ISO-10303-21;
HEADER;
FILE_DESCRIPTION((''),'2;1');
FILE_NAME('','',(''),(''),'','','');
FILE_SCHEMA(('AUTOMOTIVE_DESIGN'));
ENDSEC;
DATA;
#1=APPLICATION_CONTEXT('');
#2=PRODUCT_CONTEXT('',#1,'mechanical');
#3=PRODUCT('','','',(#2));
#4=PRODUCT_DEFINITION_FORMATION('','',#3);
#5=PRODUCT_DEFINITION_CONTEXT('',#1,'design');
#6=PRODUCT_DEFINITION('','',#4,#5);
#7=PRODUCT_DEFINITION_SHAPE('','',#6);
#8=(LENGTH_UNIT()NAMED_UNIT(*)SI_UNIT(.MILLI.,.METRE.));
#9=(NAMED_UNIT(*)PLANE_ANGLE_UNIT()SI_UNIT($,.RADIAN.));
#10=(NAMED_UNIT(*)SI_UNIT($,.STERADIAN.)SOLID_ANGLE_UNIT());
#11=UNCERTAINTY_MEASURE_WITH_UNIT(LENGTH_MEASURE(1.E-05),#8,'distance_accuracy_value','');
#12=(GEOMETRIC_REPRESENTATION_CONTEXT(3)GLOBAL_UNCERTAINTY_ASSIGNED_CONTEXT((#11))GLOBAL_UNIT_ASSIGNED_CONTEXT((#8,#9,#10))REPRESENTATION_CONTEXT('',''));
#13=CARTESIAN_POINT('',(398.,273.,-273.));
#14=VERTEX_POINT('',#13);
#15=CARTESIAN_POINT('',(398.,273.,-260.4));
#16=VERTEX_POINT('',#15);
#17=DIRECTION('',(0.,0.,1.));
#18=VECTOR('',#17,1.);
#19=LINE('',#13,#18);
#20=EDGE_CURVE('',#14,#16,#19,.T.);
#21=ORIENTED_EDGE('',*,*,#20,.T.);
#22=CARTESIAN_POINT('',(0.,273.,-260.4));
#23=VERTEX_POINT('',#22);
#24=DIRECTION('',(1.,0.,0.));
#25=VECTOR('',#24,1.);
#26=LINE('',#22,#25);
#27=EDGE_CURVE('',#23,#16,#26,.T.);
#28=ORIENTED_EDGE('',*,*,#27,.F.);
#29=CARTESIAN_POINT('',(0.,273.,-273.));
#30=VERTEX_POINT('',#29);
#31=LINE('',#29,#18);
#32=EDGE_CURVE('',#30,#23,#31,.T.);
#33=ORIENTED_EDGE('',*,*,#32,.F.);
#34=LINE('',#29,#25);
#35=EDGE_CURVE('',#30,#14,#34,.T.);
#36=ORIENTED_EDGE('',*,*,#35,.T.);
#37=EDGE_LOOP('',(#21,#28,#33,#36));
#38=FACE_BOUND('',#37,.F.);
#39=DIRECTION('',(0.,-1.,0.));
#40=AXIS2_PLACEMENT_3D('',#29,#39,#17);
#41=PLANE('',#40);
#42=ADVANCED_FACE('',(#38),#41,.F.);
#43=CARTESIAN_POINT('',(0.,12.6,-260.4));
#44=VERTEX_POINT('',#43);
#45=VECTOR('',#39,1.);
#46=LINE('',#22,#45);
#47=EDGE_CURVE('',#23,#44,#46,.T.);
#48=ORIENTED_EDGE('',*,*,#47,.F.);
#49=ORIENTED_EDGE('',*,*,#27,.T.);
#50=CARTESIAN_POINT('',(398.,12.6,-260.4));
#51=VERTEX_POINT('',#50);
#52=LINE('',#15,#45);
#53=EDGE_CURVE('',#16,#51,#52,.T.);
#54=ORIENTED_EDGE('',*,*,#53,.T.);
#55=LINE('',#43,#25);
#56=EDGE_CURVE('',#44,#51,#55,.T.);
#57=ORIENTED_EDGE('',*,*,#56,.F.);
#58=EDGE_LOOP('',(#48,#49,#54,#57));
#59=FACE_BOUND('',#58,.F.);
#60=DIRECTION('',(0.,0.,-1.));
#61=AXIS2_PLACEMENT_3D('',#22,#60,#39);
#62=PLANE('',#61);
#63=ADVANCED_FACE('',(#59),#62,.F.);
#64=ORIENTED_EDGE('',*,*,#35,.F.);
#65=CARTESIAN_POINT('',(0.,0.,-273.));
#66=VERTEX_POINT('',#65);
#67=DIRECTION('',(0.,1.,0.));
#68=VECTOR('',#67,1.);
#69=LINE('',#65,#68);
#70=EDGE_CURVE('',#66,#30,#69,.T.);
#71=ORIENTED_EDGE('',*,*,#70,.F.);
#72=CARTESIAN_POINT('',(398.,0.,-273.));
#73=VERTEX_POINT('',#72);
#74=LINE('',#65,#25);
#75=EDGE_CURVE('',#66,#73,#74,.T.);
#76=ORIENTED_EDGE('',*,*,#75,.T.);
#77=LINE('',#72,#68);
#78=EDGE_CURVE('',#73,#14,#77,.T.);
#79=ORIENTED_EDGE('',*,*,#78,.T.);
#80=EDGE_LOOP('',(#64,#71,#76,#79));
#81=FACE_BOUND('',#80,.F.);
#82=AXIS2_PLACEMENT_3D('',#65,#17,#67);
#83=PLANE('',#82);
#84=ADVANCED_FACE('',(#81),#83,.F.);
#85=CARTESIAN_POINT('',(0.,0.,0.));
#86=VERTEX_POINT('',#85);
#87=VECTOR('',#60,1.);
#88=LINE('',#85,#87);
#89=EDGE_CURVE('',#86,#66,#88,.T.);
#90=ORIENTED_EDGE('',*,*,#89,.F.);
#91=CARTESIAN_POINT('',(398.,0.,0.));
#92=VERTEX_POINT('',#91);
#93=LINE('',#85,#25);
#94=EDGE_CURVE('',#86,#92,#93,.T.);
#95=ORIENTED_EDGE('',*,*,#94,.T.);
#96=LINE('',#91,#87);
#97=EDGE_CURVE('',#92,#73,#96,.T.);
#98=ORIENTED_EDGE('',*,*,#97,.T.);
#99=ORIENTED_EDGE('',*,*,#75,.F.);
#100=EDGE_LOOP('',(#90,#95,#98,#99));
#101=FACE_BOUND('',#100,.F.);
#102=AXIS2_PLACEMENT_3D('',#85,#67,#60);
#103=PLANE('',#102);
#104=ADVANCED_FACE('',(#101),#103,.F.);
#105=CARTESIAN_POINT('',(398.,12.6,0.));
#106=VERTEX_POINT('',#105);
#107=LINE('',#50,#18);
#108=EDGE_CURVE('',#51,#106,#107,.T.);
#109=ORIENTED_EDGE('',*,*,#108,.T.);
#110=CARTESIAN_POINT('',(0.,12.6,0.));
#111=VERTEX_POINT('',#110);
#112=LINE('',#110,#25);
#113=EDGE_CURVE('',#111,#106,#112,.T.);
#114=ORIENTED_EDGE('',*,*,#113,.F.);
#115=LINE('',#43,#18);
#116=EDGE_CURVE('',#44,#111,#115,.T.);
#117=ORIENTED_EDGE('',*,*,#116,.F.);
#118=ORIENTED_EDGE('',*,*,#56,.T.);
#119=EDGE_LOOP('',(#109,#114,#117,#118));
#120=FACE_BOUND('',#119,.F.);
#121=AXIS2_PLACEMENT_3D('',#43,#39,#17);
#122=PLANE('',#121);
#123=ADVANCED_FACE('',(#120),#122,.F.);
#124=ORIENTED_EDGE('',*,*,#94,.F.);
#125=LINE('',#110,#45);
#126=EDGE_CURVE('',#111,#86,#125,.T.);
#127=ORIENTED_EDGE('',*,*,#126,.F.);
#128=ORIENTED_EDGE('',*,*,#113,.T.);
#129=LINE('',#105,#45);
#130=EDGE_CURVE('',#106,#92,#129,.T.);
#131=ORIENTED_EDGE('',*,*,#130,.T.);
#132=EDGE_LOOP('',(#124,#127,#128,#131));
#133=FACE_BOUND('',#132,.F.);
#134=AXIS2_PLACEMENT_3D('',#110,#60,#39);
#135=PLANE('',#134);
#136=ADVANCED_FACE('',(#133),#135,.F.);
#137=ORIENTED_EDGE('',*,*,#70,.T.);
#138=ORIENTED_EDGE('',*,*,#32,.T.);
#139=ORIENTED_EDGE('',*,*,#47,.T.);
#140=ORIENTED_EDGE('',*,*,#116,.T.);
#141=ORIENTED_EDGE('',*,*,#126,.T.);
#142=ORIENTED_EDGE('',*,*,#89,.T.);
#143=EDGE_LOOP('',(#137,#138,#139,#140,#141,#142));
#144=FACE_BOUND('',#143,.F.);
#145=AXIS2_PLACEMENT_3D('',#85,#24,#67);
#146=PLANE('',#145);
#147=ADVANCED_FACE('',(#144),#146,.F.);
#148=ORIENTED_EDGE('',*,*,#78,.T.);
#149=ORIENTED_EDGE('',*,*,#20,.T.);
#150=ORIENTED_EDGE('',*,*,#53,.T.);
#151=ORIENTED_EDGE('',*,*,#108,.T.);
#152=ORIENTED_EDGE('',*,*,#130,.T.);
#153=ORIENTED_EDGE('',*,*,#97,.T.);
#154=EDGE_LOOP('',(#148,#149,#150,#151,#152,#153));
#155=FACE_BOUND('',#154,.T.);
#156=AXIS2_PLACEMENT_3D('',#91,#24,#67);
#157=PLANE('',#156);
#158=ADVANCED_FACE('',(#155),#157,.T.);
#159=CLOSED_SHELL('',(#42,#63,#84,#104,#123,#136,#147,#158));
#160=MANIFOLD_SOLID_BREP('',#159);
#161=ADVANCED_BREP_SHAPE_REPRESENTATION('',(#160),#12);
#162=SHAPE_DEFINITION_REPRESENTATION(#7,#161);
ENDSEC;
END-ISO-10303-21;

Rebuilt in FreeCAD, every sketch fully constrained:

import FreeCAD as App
import Part
import Sketcher
from FreeCAD import Vector


def add_polygon(sketch, points):
    """Adds a closed chain of lines whose ends are joined by coincident constraints."""
    first, n = sketch.GeometryCount, len(points)
    for a, b in zip(points, points[1:] + points[:1]):
        sketch.addGeometry(Part.LineSegment(App.Vector(*a, 0), App.Vector(*b, 0)), False)
    for i in range(n):
        sketch.addConstraint(Sketcher.Constraint("Coincident", first + i, 2, first + (i + 1) % n, 1))

doc = App.newDocument("Part")
body = doc.addObject("PartDesign::Body", "Body")

sketch1 = body.newObject("Sketcher::SketchObject", "Sketch")
sketch1.AttachmentSupport = (doc.getObject("YZ_Plane"), [""])
sketch1.MapMode = "FlatFace"
add_polygon(sketch1, [(12.6, 0), (0, 0), (0, -273), (273, -273), (273, -260.4), (12.6, -260.4)])
sketch1.addConstraint([
    Sketcher.Constraint("Horizontal", 0),
    Sketcher.Constraint("Vertical", 1),
    Sketcher.Constraint("Horizontal", 2),
    Sketcher.Constraint("Vertical", 3),
    Sketcher.Constraint("Horizontal", 4),
    Sketcher.Constraint("Vertical", 5),
    Sketcher.Constraint("Coincident", 0, 2, -1, 1),
    Sketcher.Constraint("Equal", 2, 1),
    Sketcher.Constraint("Equal", 0, 3),
    Sketcher.Constraint("DistanceX", 2, 1, 2, 2, 273.0),
    Sketcher.Constraint("DistanceX", 0, 2, 0, 1, 12.6),
])
pad1 = body.newObject("PartDesign::Pad", "Pad")
pad1.Profile = sketch1
pad1.Length = 398

doc.recompute()
